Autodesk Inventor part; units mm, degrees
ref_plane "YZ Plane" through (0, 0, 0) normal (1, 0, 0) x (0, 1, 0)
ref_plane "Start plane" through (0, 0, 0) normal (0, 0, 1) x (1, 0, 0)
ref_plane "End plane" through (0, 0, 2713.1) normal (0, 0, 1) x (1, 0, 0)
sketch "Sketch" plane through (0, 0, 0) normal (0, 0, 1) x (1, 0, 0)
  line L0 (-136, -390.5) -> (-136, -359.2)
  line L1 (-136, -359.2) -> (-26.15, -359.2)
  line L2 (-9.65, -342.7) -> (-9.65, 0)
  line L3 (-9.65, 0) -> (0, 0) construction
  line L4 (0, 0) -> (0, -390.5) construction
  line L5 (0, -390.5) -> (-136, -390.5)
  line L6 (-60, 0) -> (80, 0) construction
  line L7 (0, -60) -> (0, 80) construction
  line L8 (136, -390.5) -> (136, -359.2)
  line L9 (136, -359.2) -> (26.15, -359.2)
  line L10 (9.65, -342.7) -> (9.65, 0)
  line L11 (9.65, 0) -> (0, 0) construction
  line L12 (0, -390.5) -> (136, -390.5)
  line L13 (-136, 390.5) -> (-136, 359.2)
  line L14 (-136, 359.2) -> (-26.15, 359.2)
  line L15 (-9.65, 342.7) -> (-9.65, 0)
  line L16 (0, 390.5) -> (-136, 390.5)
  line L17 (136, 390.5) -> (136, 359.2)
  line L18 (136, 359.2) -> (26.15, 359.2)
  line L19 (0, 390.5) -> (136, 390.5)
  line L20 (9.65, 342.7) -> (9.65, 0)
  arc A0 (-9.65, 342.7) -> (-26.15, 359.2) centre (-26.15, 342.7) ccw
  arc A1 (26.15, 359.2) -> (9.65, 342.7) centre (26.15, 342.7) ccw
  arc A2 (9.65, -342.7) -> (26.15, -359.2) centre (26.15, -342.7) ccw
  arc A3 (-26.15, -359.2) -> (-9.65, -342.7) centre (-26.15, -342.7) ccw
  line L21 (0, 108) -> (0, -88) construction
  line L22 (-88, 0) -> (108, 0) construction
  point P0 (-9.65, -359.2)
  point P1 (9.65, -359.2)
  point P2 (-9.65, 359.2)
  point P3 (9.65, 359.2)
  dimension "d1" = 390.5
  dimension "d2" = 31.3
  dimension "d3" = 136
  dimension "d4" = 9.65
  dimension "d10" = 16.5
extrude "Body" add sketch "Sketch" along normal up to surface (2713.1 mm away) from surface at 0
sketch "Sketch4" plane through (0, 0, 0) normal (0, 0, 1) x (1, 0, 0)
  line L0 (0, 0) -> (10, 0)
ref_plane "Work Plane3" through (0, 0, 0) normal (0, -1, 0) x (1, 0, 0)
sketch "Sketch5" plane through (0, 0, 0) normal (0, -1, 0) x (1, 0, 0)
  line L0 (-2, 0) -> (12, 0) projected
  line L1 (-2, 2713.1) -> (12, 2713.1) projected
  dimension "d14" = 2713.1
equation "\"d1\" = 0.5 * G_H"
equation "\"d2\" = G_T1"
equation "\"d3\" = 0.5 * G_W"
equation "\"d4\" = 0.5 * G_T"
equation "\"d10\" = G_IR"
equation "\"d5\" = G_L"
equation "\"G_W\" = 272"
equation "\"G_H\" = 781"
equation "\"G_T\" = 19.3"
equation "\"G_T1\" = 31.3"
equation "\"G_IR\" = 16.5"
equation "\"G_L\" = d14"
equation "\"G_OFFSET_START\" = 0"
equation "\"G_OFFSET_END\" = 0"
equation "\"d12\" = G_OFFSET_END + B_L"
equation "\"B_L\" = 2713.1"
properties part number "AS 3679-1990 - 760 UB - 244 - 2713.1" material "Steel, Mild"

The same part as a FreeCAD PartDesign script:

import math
import FreeCAD as App
import Part
import Sketcher

doc = App.newDocument("Part")
body = doc.addObject("PartDesign::Body", "Body")

# Sketch on XY plane
sketch1 = body.newObject("Sketcher::SketchObject", "Sketch")
sketch1.AttachmentSupport = (doc.getObject("XY_Plane"), [""])
sketch1.MapMode = "FlatFace"
sketch1.addGeometry(Part.LineSegment(App.Vector(-136, -359, 0), App.Vector(-136, -390, 0)), False)
sketch1.addGeometry(Part.LineSegment(App.Vector(-136, -390, 0), App.Vector(136, -390, 0)), False)
sketch1.addGeometry(Part.LineSegment(App.Vector(136, -390, 0), App.Vector(136, -359, 0)), False)
sketch1.addGeometry(Part.LineSegment(App.Vector(136, -359, 0), App.Vector(26, -359, 0)), False)
sketch1.addGeometry(Part.ArcOfCircle(Part.Circle(App.Vector(26, -343, 0), App.Vector(0, 0, 1), 16), math.radians(180), math.radians(270)), False)
sketch1.addGeometry(Part.LineSegment(App.Vector(10, -343, 0), App.Vector(10, 343, 0)), False)
sketch1.addGeometry(Part.ArcOfCircle(Part.Circle(App.Vector(26, 343, 0), App.Vector(0, 0, 1), 16), math.radians(90), math.radians(180)), False)
sketch1.addGeometry(Part.LineSegment(App.Vector(26, 359, 0), App.Vector(136, 359, 0)), False)
sketch1.addGeometry(Part.LineSegment(App.Vector(136, 359, 0), App.Vector(136, 390, 0)), False)
sketch1.addGeometry(Part.LineSegment(App.Vector(136, 390, 0), App.Vector(-136, 390, 0)), False)
sketch1.addGeometry(Part.LineSegment(App.Vector(-136, 390, 0), App.Vector(-136, 359, 0)), False)
sketch1.addGeometry(Part.LineSegment(App.Vector(-136, 359, 0), App.Vector(-26, 359, 0)), False)
sketch1.addGeometry(Part.ArcOfCircle(Part.Circle(App.Vector(-26, 343, 0), App.Vector(0, 0, 1), 16), math.radians(0), math.radians(90)), False)
sketch1.addGeometry(Part.LineSegment(App.Vector(-10, 343, 0), App.Vector(-10, -343, 0)), False)
sketch1.addGeometry(Part.ArcOfCircle(Part.Circle(App.Vector(-26, -343, 0), App.Vector(0, 0, 1), 16), math.radians(-90), math.radians(0)), False)
sketch1.addGeometry(Part.LineSegment(App.Vector(-26, -359, 0), App.Vector(-136, -359, 0)), False)
sketch1.addConstraint(Sketcher.Constraint("Coincident", 0, 2, 1, 1))
sketch1.addConstraint(Sketcher.Constraint("Coincident", 1, 2, 2, 1))
sketch1.addConstraint(Sketcher.Constraint("Coincident", 2, 2, 3, 1))
sketch1.addConstraint(Sketcher.Constraint("Tangent", 3, 2, 4, 2))
sketch1.addConstraint(Sketcher.Constraint("Tangent", 4, 1, 5, 1))
sketch1.addConstraint(Sketcher.Constraint("Tangent", 5, 2, 6, 2))
sketch1.addConstraint(Sketcher.Constraint("Tangent", 6, 1, 7, 1))
sketch1.addConstraint(Sketcher.Constraint("Coincident", 7, 2, 8, 1))
sketch1.addConstraint(Sketcher.Constraint("Coincident", 8, 2, 9, 1))
sketch1.addConstraint(Sketcher.Constraint("Coincident", 9, 2, 10, 1))
sketch1.addConstraint(Sketcher.Constraint("Coincident", 10, 2, 11, 1))
sketch1.addConstraint(Sketcher.Constraint("Tangent", 11, 2, 12, 2))
sketch1.addConstraint(Sketcher.Constraint("Tangent", 12, 1, 13, 1))
sketch1.addConstraint(Sketcher.Constraint("Tangent", 13, 2, 14, 2))
sketch1.addConstraint(Sketcher.Constraint("Tangent", 14, 1, 15, 1))
sketch1.addConstraint(Sketcher.Constraint("Coincident", 15, 2, 0, 1))
sketch1.addConstraint(Sketcher.Constraint("Vertical", 0))
sketch1.addConstraint(Sketcher.Constraint("Horizontal", 1))
sketch1.addConstraint(Sketcher.Constraint("Vertical", 2))
sketch1.addConstraint(Sketcher.Constraint("Horizontal", 3))
sketch1.addConstraint(Sketcher.Constraint("Vertical", 5))
sketch1.addConstraint(Sketcher.Constraint("Horizontal", 7))
sketch1.addConstraint(Sketcher.Constraint("Vertical", 8))
sketch1.addConstraint(Sketcher.Constraint("Horizontal", 9))
sketch1.addConstraint(Sketcher.Constraint("Vertical", 10))
sketch1.addConstraint(Sketcher.Constraint("Horizontal", 11))
sketch1.addConstraint(Sketcher.Constraint("Vertical", 13))
sketch1.addConstraint(Sketcher.Constraint("Horizontal", 15))
sketch1.addConstraint(Sketcher.Constraint("Equal", 4, 6))
sketch1.addConstraint(Sketcher.Constraint("Equal", 6, 12))
sketch1.addConstraint(Sketcher.Constraint("Equal", 12, 14))
sketch1.addConstraint(Sketcher.Constraint("Symmetric", 4, 3, 12, 3, -1, 1))
sketch1.addConstraint(Sketcher.Constraint("Symmetric", 0, 2, 8, 2, -1, 1))
sketch1.addConstraint(Sketcher.Constraint("Symmetric", 7, 2, 10, 2, -2))
sketch1.addConstraint(Sketcher.Constraint("Symmetric", 2, 2, 15, 2, -2))
sketch1.addConstraint(Sketcher.Constraint("Radius", 4, 16.5))
sketch1.addConstraint(Sketcher.Constraint("DistanceY", 0, 2, 0, 1, 31.3))
sketch1.addConstraint(Sketcher.Constraint("DistanceX", 0, 2, -1, 1, 136.0))
sketch1.addConstraint(Sketcher.Constraint("DistanceY", 0, 2, -1, 1, 390.5))
sketch1.addConstraint(Sketcher.Constraint("DistanceX", -1, 1, 4, 1, 9.65))
pad1 = body.newObject("PartDesign::Pad", "Pad")
pad1.Profile = sketch1
pad1.Length = 2713.1

doc.recompute()
